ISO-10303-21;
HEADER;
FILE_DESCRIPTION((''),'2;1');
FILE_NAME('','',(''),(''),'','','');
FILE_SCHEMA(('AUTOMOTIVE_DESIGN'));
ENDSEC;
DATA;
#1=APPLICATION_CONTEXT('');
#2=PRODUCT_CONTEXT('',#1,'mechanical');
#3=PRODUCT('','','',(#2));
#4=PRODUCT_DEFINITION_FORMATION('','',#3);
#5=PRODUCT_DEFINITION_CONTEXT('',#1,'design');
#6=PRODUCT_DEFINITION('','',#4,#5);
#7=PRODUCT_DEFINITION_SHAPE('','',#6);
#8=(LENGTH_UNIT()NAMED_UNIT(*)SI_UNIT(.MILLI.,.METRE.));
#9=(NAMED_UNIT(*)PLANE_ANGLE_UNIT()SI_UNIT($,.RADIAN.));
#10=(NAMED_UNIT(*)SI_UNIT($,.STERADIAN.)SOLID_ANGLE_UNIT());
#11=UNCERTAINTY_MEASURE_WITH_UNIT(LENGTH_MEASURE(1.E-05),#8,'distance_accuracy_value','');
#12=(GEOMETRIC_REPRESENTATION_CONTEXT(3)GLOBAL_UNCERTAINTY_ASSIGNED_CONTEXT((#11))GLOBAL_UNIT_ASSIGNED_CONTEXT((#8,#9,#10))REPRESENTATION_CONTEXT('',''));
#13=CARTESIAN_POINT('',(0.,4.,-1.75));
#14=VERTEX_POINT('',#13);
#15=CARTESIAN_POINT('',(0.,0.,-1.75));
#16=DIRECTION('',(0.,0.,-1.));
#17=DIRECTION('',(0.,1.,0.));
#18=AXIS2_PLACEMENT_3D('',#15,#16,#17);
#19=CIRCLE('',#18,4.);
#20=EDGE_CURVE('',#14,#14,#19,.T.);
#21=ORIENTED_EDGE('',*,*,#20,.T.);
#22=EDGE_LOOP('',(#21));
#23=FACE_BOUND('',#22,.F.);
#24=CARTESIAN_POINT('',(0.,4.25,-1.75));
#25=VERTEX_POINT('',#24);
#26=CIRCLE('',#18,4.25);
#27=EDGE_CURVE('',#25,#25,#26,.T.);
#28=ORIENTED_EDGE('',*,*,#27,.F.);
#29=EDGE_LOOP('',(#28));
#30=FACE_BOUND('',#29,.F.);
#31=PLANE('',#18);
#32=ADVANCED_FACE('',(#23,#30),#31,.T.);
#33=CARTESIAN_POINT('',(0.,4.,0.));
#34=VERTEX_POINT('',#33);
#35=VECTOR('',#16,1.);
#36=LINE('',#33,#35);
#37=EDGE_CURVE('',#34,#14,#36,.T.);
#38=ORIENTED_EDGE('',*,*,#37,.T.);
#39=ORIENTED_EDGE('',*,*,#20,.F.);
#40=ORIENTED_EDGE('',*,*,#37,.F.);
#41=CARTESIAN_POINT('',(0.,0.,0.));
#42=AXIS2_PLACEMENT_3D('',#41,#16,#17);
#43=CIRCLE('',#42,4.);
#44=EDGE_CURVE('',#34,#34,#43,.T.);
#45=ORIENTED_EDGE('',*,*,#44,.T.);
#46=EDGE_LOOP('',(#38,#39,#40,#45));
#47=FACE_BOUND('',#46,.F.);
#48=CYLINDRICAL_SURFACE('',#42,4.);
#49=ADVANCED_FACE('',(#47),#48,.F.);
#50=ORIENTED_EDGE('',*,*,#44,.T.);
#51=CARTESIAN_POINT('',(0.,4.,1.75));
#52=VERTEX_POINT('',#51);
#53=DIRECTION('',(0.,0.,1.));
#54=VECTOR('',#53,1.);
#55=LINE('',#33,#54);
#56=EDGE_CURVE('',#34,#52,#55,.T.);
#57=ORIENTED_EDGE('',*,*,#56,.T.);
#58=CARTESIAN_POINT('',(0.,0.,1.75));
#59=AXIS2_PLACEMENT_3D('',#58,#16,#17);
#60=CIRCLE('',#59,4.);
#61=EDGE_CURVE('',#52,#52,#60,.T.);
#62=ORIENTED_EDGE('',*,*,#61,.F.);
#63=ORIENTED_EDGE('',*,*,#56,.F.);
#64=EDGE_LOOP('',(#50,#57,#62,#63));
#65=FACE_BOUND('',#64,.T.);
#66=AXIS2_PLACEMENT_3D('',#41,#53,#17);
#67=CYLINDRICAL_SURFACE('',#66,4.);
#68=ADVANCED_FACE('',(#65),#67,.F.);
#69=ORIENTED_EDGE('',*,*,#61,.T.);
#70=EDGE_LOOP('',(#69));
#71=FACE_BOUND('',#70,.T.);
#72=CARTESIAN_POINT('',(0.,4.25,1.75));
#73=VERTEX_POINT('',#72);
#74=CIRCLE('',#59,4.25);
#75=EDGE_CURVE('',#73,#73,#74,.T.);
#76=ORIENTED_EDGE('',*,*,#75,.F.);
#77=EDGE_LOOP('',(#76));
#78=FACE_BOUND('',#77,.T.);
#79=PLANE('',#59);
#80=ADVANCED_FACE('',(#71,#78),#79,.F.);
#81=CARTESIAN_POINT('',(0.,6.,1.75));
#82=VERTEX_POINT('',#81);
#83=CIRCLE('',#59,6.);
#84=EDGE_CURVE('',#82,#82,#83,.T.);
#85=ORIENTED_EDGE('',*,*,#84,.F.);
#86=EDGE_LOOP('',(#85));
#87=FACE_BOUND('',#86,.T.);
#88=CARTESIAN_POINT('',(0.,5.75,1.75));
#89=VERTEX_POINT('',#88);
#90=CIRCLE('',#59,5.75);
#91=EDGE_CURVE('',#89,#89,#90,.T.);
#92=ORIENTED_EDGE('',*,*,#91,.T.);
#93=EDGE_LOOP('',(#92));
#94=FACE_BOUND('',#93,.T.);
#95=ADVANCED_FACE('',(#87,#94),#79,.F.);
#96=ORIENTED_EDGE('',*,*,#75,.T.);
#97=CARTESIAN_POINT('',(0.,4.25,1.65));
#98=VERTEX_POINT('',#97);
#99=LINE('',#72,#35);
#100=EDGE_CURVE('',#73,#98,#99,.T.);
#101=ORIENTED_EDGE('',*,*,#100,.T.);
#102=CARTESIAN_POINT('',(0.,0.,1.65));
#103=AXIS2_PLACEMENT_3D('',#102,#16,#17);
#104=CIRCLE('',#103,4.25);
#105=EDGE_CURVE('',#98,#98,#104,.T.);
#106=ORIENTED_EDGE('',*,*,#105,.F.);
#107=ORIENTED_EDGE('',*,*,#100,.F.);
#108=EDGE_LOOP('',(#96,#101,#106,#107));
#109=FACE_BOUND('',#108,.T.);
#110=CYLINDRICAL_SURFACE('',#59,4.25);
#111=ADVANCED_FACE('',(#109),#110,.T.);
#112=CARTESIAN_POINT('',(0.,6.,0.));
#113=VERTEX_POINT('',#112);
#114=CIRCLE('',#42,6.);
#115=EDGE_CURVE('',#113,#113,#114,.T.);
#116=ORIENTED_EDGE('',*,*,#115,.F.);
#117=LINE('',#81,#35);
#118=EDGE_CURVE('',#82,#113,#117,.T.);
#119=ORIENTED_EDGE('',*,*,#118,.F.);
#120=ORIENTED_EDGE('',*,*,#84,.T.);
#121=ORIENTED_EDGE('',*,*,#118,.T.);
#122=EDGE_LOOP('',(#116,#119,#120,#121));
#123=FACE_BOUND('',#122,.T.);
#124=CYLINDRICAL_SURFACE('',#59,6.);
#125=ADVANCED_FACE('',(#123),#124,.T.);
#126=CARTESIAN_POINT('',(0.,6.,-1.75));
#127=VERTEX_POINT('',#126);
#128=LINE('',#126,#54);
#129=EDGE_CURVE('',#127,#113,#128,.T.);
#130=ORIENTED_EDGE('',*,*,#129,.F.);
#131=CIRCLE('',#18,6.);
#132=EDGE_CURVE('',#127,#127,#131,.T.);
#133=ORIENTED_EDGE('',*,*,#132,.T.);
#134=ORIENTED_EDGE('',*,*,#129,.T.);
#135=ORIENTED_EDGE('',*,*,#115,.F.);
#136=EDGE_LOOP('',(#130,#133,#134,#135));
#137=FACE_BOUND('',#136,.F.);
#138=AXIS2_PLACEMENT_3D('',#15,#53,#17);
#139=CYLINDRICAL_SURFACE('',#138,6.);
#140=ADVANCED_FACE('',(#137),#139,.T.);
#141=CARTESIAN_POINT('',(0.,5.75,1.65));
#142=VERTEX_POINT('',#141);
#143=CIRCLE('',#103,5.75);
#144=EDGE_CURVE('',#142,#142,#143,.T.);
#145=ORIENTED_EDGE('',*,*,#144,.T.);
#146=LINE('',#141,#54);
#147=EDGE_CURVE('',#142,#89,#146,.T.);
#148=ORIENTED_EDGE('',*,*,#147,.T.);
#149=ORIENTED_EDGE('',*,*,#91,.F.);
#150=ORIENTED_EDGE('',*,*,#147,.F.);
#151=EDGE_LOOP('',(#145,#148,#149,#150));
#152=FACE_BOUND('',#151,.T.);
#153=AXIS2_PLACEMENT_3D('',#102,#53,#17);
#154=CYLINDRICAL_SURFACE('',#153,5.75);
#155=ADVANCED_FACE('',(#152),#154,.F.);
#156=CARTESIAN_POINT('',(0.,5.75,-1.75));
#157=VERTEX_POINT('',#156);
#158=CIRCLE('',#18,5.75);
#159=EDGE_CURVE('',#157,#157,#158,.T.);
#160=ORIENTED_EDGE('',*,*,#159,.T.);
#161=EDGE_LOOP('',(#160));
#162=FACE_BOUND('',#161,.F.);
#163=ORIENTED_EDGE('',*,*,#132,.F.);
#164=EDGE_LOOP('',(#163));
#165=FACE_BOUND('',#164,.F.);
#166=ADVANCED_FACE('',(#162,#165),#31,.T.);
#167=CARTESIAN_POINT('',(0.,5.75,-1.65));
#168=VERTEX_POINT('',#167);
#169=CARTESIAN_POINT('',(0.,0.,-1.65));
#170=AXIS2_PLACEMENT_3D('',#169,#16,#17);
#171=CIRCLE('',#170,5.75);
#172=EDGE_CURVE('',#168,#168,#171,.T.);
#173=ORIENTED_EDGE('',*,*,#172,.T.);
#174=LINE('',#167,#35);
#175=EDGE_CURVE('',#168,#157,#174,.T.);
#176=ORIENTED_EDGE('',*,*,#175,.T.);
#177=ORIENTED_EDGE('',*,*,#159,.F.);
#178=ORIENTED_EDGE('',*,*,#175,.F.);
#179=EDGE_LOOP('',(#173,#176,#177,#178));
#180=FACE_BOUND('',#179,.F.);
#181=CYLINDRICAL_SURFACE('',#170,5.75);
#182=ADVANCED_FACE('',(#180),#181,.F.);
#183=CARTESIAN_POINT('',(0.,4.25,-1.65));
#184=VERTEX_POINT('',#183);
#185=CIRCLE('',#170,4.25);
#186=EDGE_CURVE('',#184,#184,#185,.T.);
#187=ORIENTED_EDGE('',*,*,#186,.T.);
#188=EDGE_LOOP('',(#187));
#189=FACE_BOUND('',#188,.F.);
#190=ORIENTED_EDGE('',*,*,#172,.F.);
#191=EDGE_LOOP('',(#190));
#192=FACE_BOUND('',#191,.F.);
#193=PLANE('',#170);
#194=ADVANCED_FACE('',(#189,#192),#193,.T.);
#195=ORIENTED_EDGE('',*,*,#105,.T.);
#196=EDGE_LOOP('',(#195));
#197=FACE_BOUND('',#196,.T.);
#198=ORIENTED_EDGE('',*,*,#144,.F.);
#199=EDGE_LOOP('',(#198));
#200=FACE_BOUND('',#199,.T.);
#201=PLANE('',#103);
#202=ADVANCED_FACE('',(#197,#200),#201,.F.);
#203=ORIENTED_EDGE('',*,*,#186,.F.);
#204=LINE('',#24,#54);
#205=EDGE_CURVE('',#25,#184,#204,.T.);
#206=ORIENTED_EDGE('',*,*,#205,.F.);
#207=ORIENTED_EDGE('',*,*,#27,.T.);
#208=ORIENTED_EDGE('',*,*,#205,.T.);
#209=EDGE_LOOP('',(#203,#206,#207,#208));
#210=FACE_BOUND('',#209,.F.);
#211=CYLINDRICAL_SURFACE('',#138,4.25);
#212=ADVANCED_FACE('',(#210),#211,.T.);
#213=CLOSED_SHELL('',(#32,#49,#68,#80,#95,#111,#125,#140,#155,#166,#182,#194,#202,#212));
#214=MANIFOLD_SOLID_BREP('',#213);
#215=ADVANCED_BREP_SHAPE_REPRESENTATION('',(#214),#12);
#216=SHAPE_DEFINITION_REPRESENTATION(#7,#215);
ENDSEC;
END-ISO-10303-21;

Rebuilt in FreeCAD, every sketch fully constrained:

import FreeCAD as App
import Part
import Sketcher
from FreeCAD import Vector
Q = App.Units.Quantity


def add_polygon(sketch, points):
    """Adds a closed chain of lines whose ends are joined by coincident constraints."""
    first, n = sketch.GeometryCount, len(points)
    for a, b in zip(points, points[1:] + points[:1]):
        sketch.addGeometry(Part.LineSegment(App.Vector(*a, 0), App.Vector(*b, 0)), False)
    for i in range(n):
        sketch.addConstraint(Sketcher.Constraint("Coincident", first + i, 2, first + (i + 1) % n, 1))

doc = App.newDocument("Part")
body = doc.addObject("PartDesign::Body", "Body")

# Sketch on YZ plane
sketch1 = body.newObject("Sketcher::SketchObject", "Sketch")
sketch1.AttachmentSupport = (doc.getObject("YZ_Plane"), [""])
sketch1.MapMode = "FlatFace"
add_polygon(sketch1, [(4, 1.75), (4, -1.75), (4.25, -1.75), (4.25, -1.65), (5.75, -1.65), (5.75, -1.75), (6, -1.75), (6, 1.75), (5.75, 1.75), (5.75, 1.65), (4.25, 1.65), (4.25, 1.75)])  # lines 0-11
sketch1.addConstraint(Sketcher.Constraint("Vertical", 0))
sketch1.addConstraint(Sketcher.Constraint("Horizontal", 1))
sketch1.addConstraint(Sketcher.Constraint("Vertical", 2))
sketch1.addConstraint(Sketcher.Constraint("Horizontal", 3))
sketch1.addConstraint(Sketcher.Constraint("Vertical", 4))
sketch1.addConstraint(Sketcher.Constraint("Horizontal", 5))
sketch1.addConstraint(Sketcher.Constraint("Vertical", 6))
sketch1.addConstraint(Sketcher.Constraint("Horizontal", 7))
sketch1.addConstraint(Sketcher.Constraint("Vertical", 8))
sketch1.addConstraint(Sketcher.Constraint("Horizontal", 9))
sketch1.addConstraint(Sketcher.Constraint("Vertical", 10))
sketch1.addConstraint(Sketcher.Constraint("Horizontal", 11))
sketch1.addConstraint(Sketcher.Constraint("Symmetric", 4, 2, 7, 2, -1))
sketch1.addConstraint(Sketcher.Constraint("Symmetric", 2, 2, 9, 2, -1))
sketch1.addConstraint(Sketcher.Constraint("Horizontal", 1, 2, 4, 2))
sketch1.addConstraint(Sketcher.Constraint("Horizontal", 7, 2, 10, 2))
sketch1.addConstraint(Sketcher.Constraint("Equal", 1, 5))
sketch1.addConstraint(Sketcher.Constraint("DistanceX", 3, 1, 3, 2, Q("1.5 mm")))
sketch1.addConstraint(Sketcher.Constraint("DistanceY", 0, 2, 0, 1, Q("3.5 mm")))
sketch1.addConstraint(Sketcher.Constraint("DistanceY", 2, 1, 2, 2, Q("0.1 mm")))
sketch1.addConstraint(Sketcher.Constraint("DistanceX", -1, 1, 0, 2, Q("4 mm")))
sketch1.addConstraint(Sketcher.Constraint("DistanceX", -1, 1, 5, 2, Q("6 mm")))
revolution = body.newObject("PartDesign::Revolution", "Revolution")
revolution.Profile = sketch1
revolution.ReferenceAxis = (sketch1, ["V_Axis"])
revolution.Angle = 360

doc.recompute()
